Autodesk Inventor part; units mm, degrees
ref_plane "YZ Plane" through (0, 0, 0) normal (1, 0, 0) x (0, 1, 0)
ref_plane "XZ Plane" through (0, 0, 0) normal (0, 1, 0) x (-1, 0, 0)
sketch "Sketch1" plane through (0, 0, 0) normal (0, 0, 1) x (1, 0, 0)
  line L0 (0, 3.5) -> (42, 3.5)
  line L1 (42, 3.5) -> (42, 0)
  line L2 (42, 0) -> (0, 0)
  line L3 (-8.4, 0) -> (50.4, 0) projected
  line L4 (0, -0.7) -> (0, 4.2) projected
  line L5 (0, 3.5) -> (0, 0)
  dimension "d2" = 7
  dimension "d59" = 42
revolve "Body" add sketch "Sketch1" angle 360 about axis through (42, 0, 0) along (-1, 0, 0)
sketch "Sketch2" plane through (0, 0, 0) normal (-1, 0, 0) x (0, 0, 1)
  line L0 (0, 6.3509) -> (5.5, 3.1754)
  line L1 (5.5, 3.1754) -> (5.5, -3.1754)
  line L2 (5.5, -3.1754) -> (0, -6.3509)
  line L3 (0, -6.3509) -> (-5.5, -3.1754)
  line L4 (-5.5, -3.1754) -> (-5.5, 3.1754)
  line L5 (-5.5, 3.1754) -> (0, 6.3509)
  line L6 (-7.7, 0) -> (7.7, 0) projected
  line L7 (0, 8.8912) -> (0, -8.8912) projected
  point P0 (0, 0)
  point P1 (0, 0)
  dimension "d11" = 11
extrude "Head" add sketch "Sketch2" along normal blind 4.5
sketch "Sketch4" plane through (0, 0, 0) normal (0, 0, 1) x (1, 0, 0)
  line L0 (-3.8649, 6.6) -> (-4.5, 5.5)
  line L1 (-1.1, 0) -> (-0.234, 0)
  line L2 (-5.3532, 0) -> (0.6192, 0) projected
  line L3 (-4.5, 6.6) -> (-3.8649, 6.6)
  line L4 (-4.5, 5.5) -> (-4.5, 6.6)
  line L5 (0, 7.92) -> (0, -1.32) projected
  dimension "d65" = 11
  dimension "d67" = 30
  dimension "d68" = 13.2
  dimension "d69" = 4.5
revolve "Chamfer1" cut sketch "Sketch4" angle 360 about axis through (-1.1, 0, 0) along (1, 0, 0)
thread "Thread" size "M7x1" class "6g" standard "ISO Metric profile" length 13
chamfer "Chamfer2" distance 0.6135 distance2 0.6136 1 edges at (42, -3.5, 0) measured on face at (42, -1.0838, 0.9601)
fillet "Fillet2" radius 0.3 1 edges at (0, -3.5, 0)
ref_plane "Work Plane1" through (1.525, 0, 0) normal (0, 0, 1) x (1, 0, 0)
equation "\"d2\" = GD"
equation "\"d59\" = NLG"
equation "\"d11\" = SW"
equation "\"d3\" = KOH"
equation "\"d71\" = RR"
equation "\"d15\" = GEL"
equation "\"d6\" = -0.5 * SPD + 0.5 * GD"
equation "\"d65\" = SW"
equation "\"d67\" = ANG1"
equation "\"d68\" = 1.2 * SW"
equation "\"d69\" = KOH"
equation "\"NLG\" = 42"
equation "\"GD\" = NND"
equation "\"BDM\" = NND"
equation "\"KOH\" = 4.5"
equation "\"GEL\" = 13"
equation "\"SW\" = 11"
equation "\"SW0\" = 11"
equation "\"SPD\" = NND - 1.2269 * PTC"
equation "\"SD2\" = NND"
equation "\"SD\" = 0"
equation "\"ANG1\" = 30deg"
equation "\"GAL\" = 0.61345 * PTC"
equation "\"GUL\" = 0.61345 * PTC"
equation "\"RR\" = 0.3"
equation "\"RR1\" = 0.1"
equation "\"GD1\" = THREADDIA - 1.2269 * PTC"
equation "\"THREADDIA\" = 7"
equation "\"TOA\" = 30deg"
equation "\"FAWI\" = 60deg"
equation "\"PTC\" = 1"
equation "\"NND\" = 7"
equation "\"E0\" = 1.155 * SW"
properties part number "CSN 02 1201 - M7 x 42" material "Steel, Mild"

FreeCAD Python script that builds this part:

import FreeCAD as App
import Part
import Sketcher

V = App.Vector
Q = App.Units.Quantity


def edges_at(feature, points):
    """Names of the edges that pass closest to the given points."""
    edges = feature.Shape.Edges
    near = lambda p: min(range(len(edges)), key=lambda i: edges[i].distToShape(Part.Vertex(*p))[0])
    return sorted({f"Edge{near(p) + 1}" for p in points})

doc = App.newDocument("Part")
body = doc.addObject("PartDesign::Body", "Body")

# Sketch on XY plane
sketch1 = body.newObject("Sketcher::SketchObject", "Sketch")
sketch1.AttachmentSupport = (doc.getObject("XY_Plane"), [""])
sketch1.MapMode = "FlatFace"
sketch1.addGeometry([
    Part.LineSegment(V(42, 3.5, 0), V(0, 3.5, 0)),
    Part.LineSegment(V(0, 3.5, 0), V(0, 0, 0)),
    Part.LineSegment(V(0, 0, 0), V(42, 0, 0)),
    Part.LineSegment(V(42, 0, 0), V(42, 3.5, 0)),
], False)
sketch1.addConstraint([
    Sketcher.Constraint("Coincident", 0, 2, 1, 1),
    Sketcher.Constraint("Coincident", 1, 2, 2, 1),
    Sketcher.Constraint("Coincident", 2, 2, 3, 1),
    Sketcher.Constraint("Coincident", 3, 2, 0, 1),
    Sketcher.Constraint("Horizontal", 0),
    Sketcher.Constraint("Vertical", 1),
    Sketcher.Constraint("Horizontal", 2),
    Sketcher.Constraint("Vertical", 3),
    Sketcher.Constraint("Coincident", 1, 2, -1, 1),
    Sketcher.Constraint("DistanceX", 0, 2, 0, 1, Q("42 mm")),
    Sketcher.Constraint("DistanceY", 1, 2, 1, 1, Q("3.5 mm")),
])
revolution = body.newObject("PartDesign::Revolution", "Revolution")
revolution.Profile = sketch1
revolution.ReferenceAxis = (sketch1, ["H_Axis"])
revolution.Angle = 360

# Sketch on YZ plane
sketch2 = body.newObject("Sketcher::SketchObject", "Sketch001")
sketch2.AttachmentSupport = (doc.getObject("YZ_Plane"), [""])
sketch2.MapMode = "FlatFace"
sketch2.addGeometry([
    Part.LineSegment(V(3.1754, -5.5, 0), V(-3.1754, -5.5, 0)),  # 0
    Part.LineSegment(V(-3.1754, -5.5, 0), V(-6.3509, 0, 0)),  # 1
    Part.LineSegment(V(-6.3509, 0, 0), V(-3.1754, 5.5, 0)),  # 2
    Part.LineSegment(V(-3.1754, 5.5, 0), V(3.1754, 5.5, 0)),  # 3
    Part.LineSegment(V(3.1754, 5.5, 0), V(6.3509, 0, 0)),  # 4
    Part.LineSegment(V(6.3509, 0, 0), V(3.1754, -5.5, 0)),  # 5
], False)
sketch2.addConstraint([
    Sketcher.Constraint("Coincident", 0, 2, 1, 1),
    Sketcher.Constraint("Coincident", 1, 2, 2, 1),
    Sketcher.Constraint("Coincident", 2, 2, 3, 1),
    Sketcher.Constraint("Coincident", 3, 2, 4, 1),
    Sketcher.Constraint("Coincident", 4, 2, 5, 1),
    Sketcher.Constraint("Coincident", 5, 2, 0, 1),
    Sketcher.Constraint("Horizontal", 0),
    Sketcher.Constraint("Horizontal", 3),
    Sketcher.Constraint("Symmetric", 0, 2, 3, 2, -1, 1),
    Sketcher.Constraint("Symmetric", 1, 2, 4, 2, -1, 1),
    Sketcher.Constraint("PointOnObject", 1, 2, -1),
    Sketcher.Constraint("Parallel", 2, 5),
    Sketcher.Constraint("Vertical", 0, 2, 2, 2),
    Sketcher.Constraint("DistanceY", 0, 2, 2, 2, Q("11 mm")),
    Sketcher.Constraint("Angle", 1, Q("120.0006 deg")),
    Sketcher.Constraint("DistanceX", 0, 2, 0, 1, Q("6.3508 mm")),
])
pad1 = body.newObject("PartDesign::Pad", "Pad")
pad1.Profile = sketch2
pad1.Length = 4.5
pad1.Reversed = True

# Sketch on XY plane
sketch3 = body.newObject("Sketcher::SketchObject", "Sketch002")
sketch3.AttachmentSupport = (doc.getObject("XY_Plane"), [""])
sketch3.MapMode = "FlatFace"
sketch3.addGeometry([
    Part.LineSegment(V(-4.5, 5.5, 0), V(-3.8649, 6.6, 0)),
    Part.LineSegment(V(-3.8649, 6.6, 0), V(-4.5, 6.6, 0)),
    Part.LineSegment(V(-4.5, 6.6, 0), V(-4.5, 5.5, 0)),
], False)
sketch3.addConstraint([
    Sketcher.Constraint("Coincident", 0, 2, 1, 1),
    Sketcher.Constraint("Coincident", 1, 2, 2, 1),
    Sketcher.Constraint("Coincident", 2, 2, 0, 1),
    Sketcher.Constraint("Horizontal", 1),
    Sketcher.Constraint("Vertical", 2),
    Sketcher.Constraint("DistanceX", 1, 2, -1, 1, Q("4.5 mm")),
    Sketcher.Constraint("Angle", 0, Q("59.9994 deg")),
    Sketcher.Constraint("DistanceY", 2, 2, 2, 1, Q("1.1 mm")),
    Sketcher.Constraint("DistanceY", -1, 1, 0, 2, Q("6.6 mm")),
])
groove = body.newObject("PartDesign::Groove", "Groove")
groove.Profile = sketch3
groove.ReferenceAxis = (sketch3, ["H_Axis"])
groove.Angle = 360
doc.recompute()

chamfer = body.newObject("PartDesign::Chamfer", "Chamfer")
chamfer.Base = (groove, edges_at(groove, [(42, -3.5, 0)]))
chamfer.ChamferType = "Two distances"
chamfer.Size = 0.6135
chamfer.Size2 = 0.6136
doc.recompute()

fillet = body.newObject("PartDesign::Fillet", "Fillet")
fillet.Base = (chamfer, edges_at(chamfer, [(0, -3.5, 0)]))
fillet.Radius = 0.3

doc.recompute()
